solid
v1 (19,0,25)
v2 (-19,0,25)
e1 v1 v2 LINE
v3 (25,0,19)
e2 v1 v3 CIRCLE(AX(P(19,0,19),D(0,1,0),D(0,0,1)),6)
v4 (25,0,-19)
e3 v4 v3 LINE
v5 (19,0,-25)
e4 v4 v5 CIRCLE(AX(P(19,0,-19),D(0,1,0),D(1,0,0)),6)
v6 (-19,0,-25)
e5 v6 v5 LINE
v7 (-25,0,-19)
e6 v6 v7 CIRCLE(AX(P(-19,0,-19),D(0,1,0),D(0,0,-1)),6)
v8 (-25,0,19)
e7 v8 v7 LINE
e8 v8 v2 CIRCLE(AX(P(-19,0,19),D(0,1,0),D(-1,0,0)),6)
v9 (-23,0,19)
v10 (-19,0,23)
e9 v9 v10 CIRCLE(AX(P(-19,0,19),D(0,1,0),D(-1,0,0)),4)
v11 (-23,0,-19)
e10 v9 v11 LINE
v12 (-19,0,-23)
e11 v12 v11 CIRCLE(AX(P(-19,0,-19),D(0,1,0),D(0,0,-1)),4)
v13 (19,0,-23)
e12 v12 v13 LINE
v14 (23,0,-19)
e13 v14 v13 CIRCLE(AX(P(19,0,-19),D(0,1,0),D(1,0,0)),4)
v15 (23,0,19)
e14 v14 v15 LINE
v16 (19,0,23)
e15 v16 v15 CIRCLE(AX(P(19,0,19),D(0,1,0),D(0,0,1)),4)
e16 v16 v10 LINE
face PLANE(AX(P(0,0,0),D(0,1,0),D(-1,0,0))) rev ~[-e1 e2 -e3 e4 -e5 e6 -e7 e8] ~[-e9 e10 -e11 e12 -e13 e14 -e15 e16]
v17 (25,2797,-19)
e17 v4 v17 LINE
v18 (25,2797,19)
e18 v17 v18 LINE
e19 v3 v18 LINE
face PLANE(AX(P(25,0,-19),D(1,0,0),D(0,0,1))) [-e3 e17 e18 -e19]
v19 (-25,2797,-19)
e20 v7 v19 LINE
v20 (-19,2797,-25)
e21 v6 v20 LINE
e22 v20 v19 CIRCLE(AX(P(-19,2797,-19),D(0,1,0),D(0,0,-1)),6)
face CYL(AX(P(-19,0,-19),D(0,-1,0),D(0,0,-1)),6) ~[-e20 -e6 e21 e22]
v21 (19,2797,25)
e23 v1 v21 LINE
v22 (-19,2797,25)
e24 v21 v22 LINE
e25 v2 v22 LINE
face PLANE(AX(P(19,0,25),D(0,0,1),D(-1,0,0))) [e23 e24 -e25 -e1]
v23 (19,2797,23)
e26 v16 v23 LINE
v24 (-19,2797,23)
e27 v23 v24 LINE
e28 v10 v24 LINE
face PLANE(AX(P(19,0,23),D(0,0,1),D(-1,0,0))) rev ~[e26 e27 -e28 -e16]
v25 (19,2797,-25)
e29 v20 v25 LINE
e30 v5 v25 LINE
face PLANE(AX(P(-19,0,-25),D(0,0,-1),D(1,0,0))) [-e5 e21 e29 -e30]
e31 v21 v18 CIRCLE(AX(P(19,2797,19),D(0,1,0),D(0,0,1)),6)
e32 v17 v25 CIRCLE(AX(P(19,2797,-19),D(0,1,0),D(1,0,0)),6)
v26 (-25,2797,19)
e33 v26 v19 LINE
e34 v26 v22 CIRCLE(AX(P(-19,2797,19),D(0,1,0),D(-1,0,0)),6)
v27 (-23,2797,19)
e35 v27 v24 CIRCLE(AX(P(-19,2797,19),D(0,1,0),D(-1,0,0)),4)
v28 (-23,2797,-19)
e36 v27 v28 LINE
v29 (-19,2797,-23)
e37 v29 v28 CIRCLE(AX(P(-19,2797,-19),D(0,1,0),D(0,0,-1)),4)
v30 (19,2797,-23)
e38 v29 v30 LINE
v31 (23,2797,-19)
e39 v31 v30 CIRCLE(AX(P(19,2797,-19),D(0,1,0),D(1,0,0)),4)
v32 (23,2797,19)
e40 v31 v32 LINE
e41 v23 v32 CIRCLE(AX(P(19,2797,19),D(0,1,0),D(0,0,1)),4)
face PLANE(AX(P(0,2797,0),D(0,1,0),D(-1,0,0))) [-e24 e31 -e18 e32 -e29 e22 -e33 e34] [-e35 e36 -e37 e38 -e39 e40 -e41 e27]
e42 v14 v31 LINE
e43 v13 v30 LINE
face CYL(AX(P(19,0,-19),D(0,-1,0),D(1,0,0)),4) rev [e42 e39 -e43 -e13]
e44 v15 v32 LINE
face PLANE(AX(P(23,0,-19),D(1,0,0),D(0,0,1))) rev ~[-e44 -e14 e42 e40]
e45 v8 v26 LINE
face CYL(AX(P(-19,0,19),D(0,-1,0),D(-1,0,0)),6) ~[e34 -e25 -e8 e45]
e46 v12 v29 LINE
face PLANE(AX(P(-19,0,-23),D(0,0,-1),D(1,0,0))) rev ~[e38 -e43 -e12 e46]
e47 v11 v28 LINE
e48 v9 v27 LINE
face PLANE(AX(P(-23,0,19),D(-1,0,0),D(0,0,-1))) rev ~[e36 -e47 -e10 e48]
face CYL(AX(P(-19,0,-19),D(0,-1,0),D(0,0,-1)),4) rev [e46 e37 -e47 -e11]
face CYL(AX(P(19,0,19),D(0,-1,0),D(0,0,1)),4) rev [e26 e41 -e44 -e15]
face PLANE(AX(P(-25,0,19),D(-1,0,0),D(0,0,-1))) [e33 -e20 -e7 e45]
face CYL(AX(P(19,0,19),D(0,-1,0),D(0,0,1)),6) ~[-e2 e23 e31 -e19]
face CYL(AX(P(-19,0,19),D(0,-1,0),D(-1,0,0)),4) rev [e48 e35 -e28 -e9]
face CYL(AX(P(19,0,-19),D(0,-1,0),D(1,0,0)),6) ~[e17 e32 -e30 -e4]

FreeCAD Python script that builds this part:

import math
import FreeCAD as App
import Part
import Sketcher

V = App.Vector

doc = App.newDocument("Part")
body = doc.addObject("PartDesign::Body", "Body")

sketch1 = body.newObject("Sketcher::SketchObject", "Sketch")
sketch1.AttachmentSupport = (doc.getObject("XZ_Plane"), [""])
sketch1.MapMode = "FlatFace"
sketch1.addGeometry([
    Part.LineSegment(V(25, 19, 0), V(25, -19, 0)),
    Part.ArcOfCircle(Part.Circle(V(19, -19, 0), V(0, 0, 1), 6), math.radians(-90), math.radians(0)),
    Part.LineSegment(V(19, -25, 0), V(-19, -25, 0)),
    Part.ArcOfCircle(Part.Circle(V(-19, -19, 0), V(0, 0, 1), 6), math.radians(180), math.radians(270)),
    Part.LineSegment(V(-25, -19, 0), V(-25, 19, 0)),
    Part.ArcOfCircle(Part.Circle(V(-19, 19, 0), V(0, 0, 1), 6), math.radians(90), math.radians(180)),
    Part.LineSegment(V(-19, 25, 0), V(19, 25, 0)),
    Part.ArcOfCircle(Part.Circle(V(19, 19, 0), V(0, 0, 1), 6), math.radians(0), math.radians(90)),
    Part.ArcOfCircle(Part.Circle(V(19, 19, 0), V(0, 0, 1), 4), math.radians(0), math.radians(90)),
    Part.LineSegment(V(19, 23, 0), V(-19, 23, 0)),
    Part.ArcOfCircle(Part.Circle(V(-19, 19, 0), V(0, 0, 1), 4), math.radians(90), math.radians(180)),
    Part.LineSegment(V(-23, 19, 0), V(-23, -19, 0)),
    Part.ArcOfCircle(Part.Circle(V(-19, -19, 0), V(0, 0, 1), 4), math.radians(180), math.radians(270)),
    Part.LineSegment(V(-19, -23, 0), V(19, -23, 0)),
    Part.ArcOfCircle(Part.Circle(V(19, -19, 0), V(0, 0, 1), 4), math.radians(-90), math.radians(0)),
    Part.LineSegment(V(23, -19, 0), V(23, 19, 0)),
], False)
sketch1.addConstraint([
    Sketcher.Constraint("Tangent", 0, 2, 1, 2),
    Sketcher.Constraint("Tangent", 1, 1, 2, 1),
    Sketcher.Constraint("Tangent", 2, 2, 3, 2),
    Sketcher.Constraint("Tangent", 3, 1, 4, 1),
    Sketcher.Constraint("Tangent", 4, 2, 5, 2),
    Sketcher.Constraint("Tangent", 5, 1, 6, 1),
    Sketcher.Constraint("Tangent", 6, 2, 7, 2),
    Sketcher.Constraint("Tangent", 7, 1, 0, 1),
    Sketcher.Constraint("Tangent", 8, 2, 9, 1),
    Sketcher.Constraint("Tangent", 9, 2, 10, 1),
    Sketcher.Constraint("Tangent", 10, 2, 11, 1),
    Sketcher.Constraint("Tangent", 11, 2, 12, 1),
    Sketcher.Constraint("Tangent", 12, 2, 13, 1),
    Sketcher.Constraint("Tangent", 13, 2, 14, 1),
    Sketcher.Constraint("Tangent", 14, 2, 15, 1),
    Sketcher.Constraint("Tangent", 15, 2, 8, 1),
    Sketcher.Constraint("Vertical", 0),
    Sketcher.Constraint("Horizontal", 2),
    Sketcher.Constraint("Vertical", 4),
    Sketcher.Constraint("Horizontal", 6),
    Sketcher.Constraint("Horizontal", 9),
    Sketcher.Constraint("Vertical", 11),
    Sketcher.Constraint("Horizontal", 13),
    Sketcher.Constraint("Vertical", 15),
    Sketcher.Constraint("Coincident", 8, 3, 7, 3),
    Sketcher.Constraint("Coincident", 10, 3, 5, 3),
    Sketcher.Constraint("Coincident", 12, 3, 3, 3),
    Sketcher.Constraint("Equal", 1, 3),
    Sketcher.Constraint("Equal", 3, 5),
    Sketcher.Constraint("Equal", 5, 7),
    Sketcher.Constraint("Equal", 12, 14),
    Sketcher.Constraint("Symmetric", 1, 3, 5, 3, -1, 1),
    Sketcher.Constraint("Equal", 13, 0),
    Sketcher.Constraint("Radius", 1, 6.0),
    Sketcher.Constraint("Radius", 8, 4.0),
    Sketcher.Constraint("DistanceX", 2, 2, 2, 1, 38.0),
])
pad1 = body.newObject("PartDesign::Pad", "Pad")
pad1.Profile = sketch1
pad1.Length = 2797
pad1.Reversed = True

doc.recompute()
